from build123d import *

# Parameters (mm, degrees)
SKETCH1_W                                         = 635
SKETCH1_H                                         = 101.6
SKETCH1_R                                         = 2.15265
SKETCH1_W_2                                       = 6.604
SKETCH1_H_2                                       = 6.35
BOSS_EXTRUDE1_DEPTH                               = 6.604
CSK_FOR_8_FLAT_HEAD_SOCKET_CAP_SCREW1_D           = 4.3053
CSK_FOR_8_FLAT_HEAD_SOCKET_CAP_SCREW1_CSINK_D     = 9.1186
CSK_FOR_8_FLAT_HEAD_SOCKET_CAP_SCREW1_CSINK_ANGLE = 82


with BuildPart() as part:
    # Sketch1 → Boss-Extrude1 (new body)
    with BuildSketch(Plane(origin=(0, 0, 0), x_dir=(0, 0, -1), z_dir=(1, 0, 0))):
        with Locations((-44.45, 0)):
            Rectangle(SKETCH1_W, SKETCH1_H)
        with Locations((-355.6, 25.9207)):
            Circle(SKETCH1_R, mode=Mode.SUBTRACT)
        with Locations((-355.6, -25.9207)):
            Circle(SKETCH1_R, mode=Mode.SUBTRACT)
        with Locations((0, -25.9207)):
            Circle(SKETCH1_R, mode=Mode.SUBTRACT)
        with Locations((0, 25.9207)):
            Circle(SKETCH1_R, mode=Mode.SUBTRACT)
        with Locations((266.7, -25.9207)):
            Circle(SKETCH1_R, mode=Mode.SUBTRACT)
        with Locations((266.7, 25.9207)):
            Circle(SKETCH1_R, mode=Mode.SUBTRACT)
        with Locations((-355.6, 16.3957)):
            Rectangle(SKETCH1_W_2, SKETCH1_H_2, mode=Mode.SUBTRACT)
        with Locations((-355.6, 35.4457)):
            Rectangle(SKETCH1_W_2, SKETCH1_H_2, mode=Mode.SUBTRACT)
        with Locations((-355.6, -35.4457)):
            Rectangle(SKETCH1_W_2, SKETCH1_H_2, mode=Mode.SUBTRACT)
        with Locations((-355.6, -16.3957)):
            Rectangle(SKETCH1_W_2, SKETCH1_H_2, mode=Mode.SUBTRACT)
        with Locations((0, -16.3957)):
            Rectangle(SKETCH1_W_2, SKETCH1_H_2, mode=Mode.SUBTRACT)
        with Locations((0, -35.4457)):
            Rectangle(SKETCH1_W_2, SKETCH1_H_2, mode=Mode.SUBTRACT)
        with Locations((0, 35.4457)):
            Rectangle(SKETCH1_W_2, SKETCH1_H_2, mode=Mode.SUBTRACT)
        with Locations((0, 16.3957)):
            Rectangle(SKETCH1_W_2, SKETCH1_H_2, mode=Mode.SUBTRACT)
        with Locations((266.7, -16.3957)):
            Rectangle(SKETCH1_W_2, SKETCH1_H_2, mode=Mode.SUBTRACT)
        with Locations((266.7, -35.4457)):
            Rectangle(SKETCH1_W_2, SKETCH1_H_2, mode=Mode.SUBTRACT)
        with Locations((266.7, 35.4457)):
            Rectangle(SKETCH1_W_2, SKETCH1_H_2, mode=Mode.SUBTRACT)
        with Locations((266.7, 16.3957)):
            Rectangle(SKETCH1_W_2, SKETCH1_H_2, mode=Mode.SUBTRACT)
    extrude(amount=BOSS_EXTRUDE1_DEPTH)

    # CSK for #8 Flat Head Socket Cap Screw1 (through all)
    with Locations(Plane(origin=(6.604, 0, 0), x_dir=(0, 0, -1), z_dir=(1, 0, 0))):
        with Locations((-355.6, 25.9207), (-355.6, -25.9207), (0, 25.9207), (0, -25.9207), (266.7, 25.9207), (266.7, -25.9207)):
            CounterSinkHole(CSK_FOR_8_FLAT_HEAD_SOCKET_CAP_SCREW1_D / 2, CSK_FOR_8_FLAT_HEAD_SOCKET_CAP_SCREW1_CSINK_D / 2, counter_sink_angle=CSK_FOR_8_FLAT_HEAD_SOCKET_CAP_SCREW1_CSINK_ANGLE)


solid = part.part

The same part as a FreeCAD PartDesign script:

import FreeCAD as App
import Part
import Sketcher
from FreeCAD import Vector
Q = App.Units.Quantity

doc = App.newDocument("Part")
body = doc.addObject("PartDesign::Body", "Body")

sketch1 = body.newObject("Sketcher::SketchObject", "Sketch")
sketch1.AttachmentSupport = (doc.getObject("YZ_Plane"), [""])
sketch1.MapMode = "FlatFace"
sketch1.addGeometry([
    Part.LineSegment(Vector(50.8, 361.9, 0), Vector(-50.8, 361.9, 0)),
    Part.LineSegment(Vector(-50.8, 361.9, 0), Vector(-50.8, -273.1, 0)),
    Part.LineSegment(Vector(-50.8, -273.1, 0), Vector(50.8, -273.1, 0)),
    Part.LineSegment(Vector(50.8, -273.1, 0), Vector(50.8, 361.9, 0)),
    Part.LineSegment(Vector(-38.6, 352.3, 0), Vector(-38.6, 358.9, 0)),
    Part.LineSegment(Vector(-38.6, 358.9, 0), Vector(-32.3, 358.9, 0)),
    Part.LineSegment(Vector(-32.3, 358.9, 0), Vector(-32.3, 352.3, 0)),
    Part.LineSegment(Vector(-32.3, 352.3, 0), Vector(-38.6, 352.3, 0)),
    Part.Circle(Vector(-25.9, 355.6, 0), Vector(0, 0, 1), 2.2),
    Part.LineSegment(Vector(-19.6, 352.3, 0), Vector(-19.6, 358.9, 0)),
    Part.LineSegment(Vector(-19.6, 358.9, 0), Vector(-13.2, 358.9, 0)),
    Part.LineSegment(Vector(-13.2, 358.9, 0), Vector(-13.2, 352.3, 0)),
    Part.LineSegment(Vector(-13.2, 352.3, 0), Vector(-19.6, 352.3, 0)),
    Part.LineSegment(Vector(-38.6, -3.3, 0), Vector(-38.6, 3.3, 0)),
    Part.LineSegment(Vector(-38.6, 3.3, 0), Vector(-32.3, 3.3, 0)),
    Part.LineSegment(Vector(-32.3, 3.3, 0), Vector(-32.3, -3.3, 0)),
    Part.LineSegment(Vector(-32.3, -3.3, 0), Vector(-38.6, -3.3, 0)),
    Part.Circle(Vector(-25.9, 0, 0), Vector(0, 0, 1), 2.2),
    Part.LineSegment(Vector(-38.6, -270, 0), Vector(-38.6, -263.4, 0)),
    Part.LineSegment(Vector(-38.6, -263.4, 0), Vector(-32.3, -263.4, 0)),
    Part.LineSegment(Vector(-32.3, -263.4, 0), Vector(-32.3, -270, 0)),
    Part.LineSegment(Vector(-32.3, -270, 0), Vector(-38.6, -270, 0)),
    Part.Circle(Vector(-25.9, -266.7, 0), Vector(0, 0, 1), 2.2),
    Part.LineSegment(Vector(-19.6, -3.3, 0), Vector(-19.6, 3.3, 0)),
    Part.LineSegment(Vector(-19.6, 3.3, 0), Vector(-13.2, 3.3, 0)),
    Part.LineSegment(Vector(-13.2, 3.3, 0), Vector(-13.2, -3.3, 0)),
    Part.LineSegment(Vector(-13.2, -3.3, 0), Vector(-19.6, -3.3, 0)),
    Part.LineSegment(Vector(-19.6, -270, 0), Vector(-19.6, -263.4, 0)),
    Part.LineSegment(Vector(-19.6, -263.4, 0), Vector(-13.2, -263.4, 0)),
    Part.LineSegment(Vector(-13.2, -263.4, 0), Vector(-13.2, -270, 0)),
    Part.LineSegment(Vector(-13.2, -270, 0), Vector(-19.6, -270, 0)),
    Part.LineSegment(Vector(13.2, 352.3, 0), Vector(13.2, 358.9, 0)),
    Part.LineSegment(Vector(13.2, 358.9, 0), Vector(19.6, 358.9, 0)),
    Part.LineSegment(Vector(19.6, 358.9, 0), Vector(19.6, 352.3, 0)),
    Part.LineSegment(Vector(19.6, 352.3, 0), Vector(13.2, 352.3, 0)),
    Part.Circle(Vector(25.9, 355.6, 0), Vector(0, 0, 1), 2.2),
    Part.LineSegment(Vector(32.3, 352.3, 0), Vector(32.3, 358.9, 0)),
    Part.LineSegment(Vector(32.3, 358.9, 0), Vector(38.6, 358.9, 0)),
    Part.LineSegment(Vector(38.6, 358.9, 0), Vector(38.6, 352.3, 0)),
    Part.LineSegment(Vector(38.6, 352.3, 0), Vector(32.3, 352.3, 0)),
    Part.LineSegment(Vector(13.2, -3.3, 0), Vector(13.2, 3.3, 0)),
    Part.LineSegment(Vector(13.2, 3.3, 0), Vector(19.6, 3.3, 0)),
    Part.LineSegment(Vector(19.6, 3.3, 0), Vector(19.6, -3.3, 0)),
    Part.LineSegment(Vector(19.6, -3.3, 0), Vector(13.2, -3.3, 0)),
    Part.LineSegment(Vector(13.2, -270, 0), Vector(13.2, -263.4, 0)),
    Part.LineSegment(Vector(13.2, -263.4, 0), Vector(19.6, -263.4, 0)),
    Part.LineSegment(Vector(19.6, -263.4, 0), Vector(19.6, -270, 0)),
    Part.LineSegment(Vector(19.6, -270, 0), Vector(13.2, -270, 0)),
    Part.Circle(Vector(25.9, 0, 0), Vector(0, 0, 1), 2.2),
    Part.LineSegment(Vector(32.3, -3.3, 0), Vector(32.3, 3.3, 0)),
    Part.LineSegment(Vector(32.3, 3.3, 0), Vector(38.6, 3.3, 0)),
    Part.LineSegment(Vector(38.6, 3.3, 0), Vector(38.6, -3.3, 0)),
    Part.LineSegment(Vector(38.6, -3.3, 0), Vector(32.3, -3.3, 0)),
    Part.Circle(Vector(25.9, -266.7, 0), Vector(0, 0, 1), 2.2),
    Part.LineSegment(Vector(32.3, -270, 0), Vector(32.3, -263.4, 0)),
    Part.LineSegment(Vector(32.3, -263.4, 0), Vector(38.6, -263.4, 0)),
    Part.LineSegment(Vector(38.6, -263.4, 0), Vector(38.6, -270, 0)),
    Part.LineSegment(Vector(38.6, -270, 0), Vector(32.3, -270, 0)),
], False)
sketch1.addConstraint([
    Sketcher.Constraint("Coincident", 0, 2, 1, 1),
    Sketcher.Constraint("Coincident", 1, 2, 2, 1),
    Sketcher.Constraint("Coincident", 2, 2, 3, 1),
    Sketcher.Constraint("Coincident", 3, 2, 0, 1),
    Sketcher.Constraint("Coincident", 4, 2, 5, 1),
    Sketcher.Constraint("Coincident", 5, 2, 6, 1),
    Sketcher.Constraint("Coincident", 6, 2, 7, 1),
    Sketcher.Constraint("Coincident", 7, 2, 4, 1),
    Sketcher.Constraint("Coincident", 9, 2, 10, 1),
    Sketcher.Constraint("Coincident", 10, 2, 11, 1),
    Sketcher.Constraint("Coincident", 11, 2, 12, 1),
    Sketcher.Constraint("Coincident", 12, 2, 9, 1),
    Sketcher.Constraint("Coincident", 13, 2, 14, 1),
    Sketcher.Constraint("Coincident", 14, 2, 15, 1),
    Sketcher.Constraint("Coincident", 15, 2, 16, 1),
    Sketcher.Constraint("Coincident", 16, 2, 13, 1),
    Sketcher.Constraint("Coincident", 18, 2, 19, 1),
    Sketcher.Constraint("Coincident", 19, 2, 20, 1),
    Sketcher.Constraint("Coincident", 20, 2, 21, 1),
    Sketcher.Constraint("Coincident", 21, 2, 18, 1),
    Sketcher.Constraint("Coincident", 23, 2, 24, 1),
    Sketcher.Constraint("Coincident", 24, 2, 25, 1),
    Sketcher.Constraint("Coincident", 25, 2, 26, 1),
    Sketcher.Constraint("Coincident", 26, 2, 23, 1),
    Sketcher.Constraint("Coincident", 27, 2, 28, 1),
    Sketcher.Constraint("Coincident", 28, 2, 29, 1),
    Sketcher.Constraint("Coincident", 29, 2, 30, 1),
    Sketcher.Constraint("Coincident", 30, 2, 27, 1),
    Sketcher.Constraint("Coincident", 31, 2, 32, 1),
    Sketcher.Constraint("Coincident", 32, 2, 33, 1),
    Sketcher.Constraint("Coincident", 33, 2, 34, 1),
    Sketcher.Constraint("Coincident", 34, 2, 31, 1),
    Sketcher.Constraint("Coincident", 36, 2, 37, 1),
    Sketcher.Constraint("Coincident", 37, 2, 38, 1),
    Sketcher.Constraint("Coincident", 38, 2, 39, 1),
    Sketcher.Constraint("Coincident", 39, 2, 36, 1),
    Sketcher.Constraint("Coincident", 40, 2, 41, 1),
    Sketcher.Constraint("Coincident", 41, 2, 42, 1),
    Sketcher.Constraint("Coincident", 42, 2, 43, 1),
    Sketcher.Constraint("Coincident", 43, 2, 40, 1),
    Sketcher.Constraint("Coincident", 44, 2, 45, 1),
    Sketcher.Constraint("Coincident", 45, 2, 46, 1),
    Sketcher.Constraint("Coincident", 46, 2, 47, 1),
    Sketcher.Constraint("Coincident", 47, 2, 44, 1),
    Sketcher.Constraint("Coincident", 49, 2, 50, 1),
    Sketcher.Constraint("Coincident", 50, 2, 51, 1),
    Sketcher.Constraint("Coincident", 51, 2, 52, 1),
    Sketcher.Constraint("Coincident", 52, 2, 49, 1),
    Sketcher.Constraint("Coincident", 54, 2, 55, 1),
    Sketcher.Constraint("Coincident", 55, 2, 56, 1),
    Sketcher.Constraint("Coincident", 56, 2, 57, 1),
    Sketcher.Constraint("Coincident", 57, 2, 54, 1),
    Sketcher.Constraint("Horizontal", 0),
    Sketcher.Constraint("Vertical", 1),
    Sketcher.Constraint("Horizontal", 2),
    Sketcher.Constraint("Vertical", 3),
    Sketcher.Constraint("Vertical", 4),
    Sketcher.Constraint("Horizontal", 5),
    Sketcher.Constraint("Vertical", 6),
    Sketcher.Constraint("Horizontal", 7),
    Sketcher.Constraint("Vertical", 9),
    Sketcher.Constraint("Horizontal", 10),
    Sketcher.Constraint("Vertical", 11),
    Sketcher.Constraint("Horizontal", 12),
    Sketcher.Constraint("Vertical", 13),
    Sketcher.Constraint("Horizontal", 14),
    Sketcher.Constraint("Vertical", 15),
    Sketcher.Constraint("Horizontal", 16),
    Sketcher.Constraint("Vertical", 18),
    Sketcher.Constraint("Horizontal", 19),
    Sketcher.Constraint("Vertical", 20),
    Sketcher.Constraint("Horizontal", 21),
    Sketcher.Constraint("Vertical", 23),
    Sketcher.Constraint("Horizontal", 24),
    Sketcher.Constraint("Vertical", 25),
    Sketcher.Constraint("Horizontal", 26),
    Sketcher.Constraint("Vertical", 27),
    Sketcher.Constraint("Horizontal", 28),
    Sketcher.Constraint("Vertical", 29),
    Sketcher.Constraint("Horizontal", 30),
    Sketcher.Constraint("Vertical", 31),
    Sketcher.Constraint("Horizontal", 32),
    Sketcher.Constraint("Vertical", 33),
    Sketcher.Constraint("Horizontal", 34),
    Sketcher.Constraint("Vertical", 36),
    Sketcher.Constraint("Horizontal", 37),
    Sketcher.Constraint("Vertical", 38),
    Sketcher.Constraint("Horizontal", 39),
    Sketcher.Constraint("Vertical", 40),
    Sketcher.Constraint("Horizontal", 41),
    Sketcher.Constraint("Vertical", 42),
    Sketcher.Constraint("Horizontal", 43),
    Sketcher.Constraint("Vertical", 44),
    Sketcher.Constraint("Horizontal", 45),
    Sketcher.Constraint("Vertical", 46),
    Sketcher.Constraint("Horizontal", 47),
    Sketcher.Constraint("Vertical", 49),
    Sketcher.Constraint("Horizontal", 50),
    Sketcher.Constraint("Vertical", 51),
    Sketcher.Constraint("Horizontal", 52),
    Sketcher.Constraint("Vertical", 54),
    Sketcher.Constraint("Horizontal", 55),
    Sketcher.Constraint("Vertical", 56),
    Sketcher.Constraint("Horizontal", 57),
    Sketcher.Constraint("Equal", 8, 17),
    Sketcher.Constraint("Equal", 17, 22),
    Sketcher.Constraint("Equal", 22, 35),
    Sketcher.Constraint("Equal", 35, 48),
    Sketcher.Constraint("Equal", 48, 53),
    Sketcher.Constraint("Symmetric", 17, 3, 48, 3, -1, 1),
    Sketcher.Constraint("Symmetric", 25, 2, 40, 2, -1, 1),
    Sketcher.Constraint("Symmetric", 23, 2, 42, 2, -1, 1),
    Sketcher.Constraint("Symmetric", 15, 2, 49, 2, -1, 1),
    Sketcher.Constraint("Symmetric", 13, 2, 51, 2, -1, 1),
    Sketcher.Constraint("Symmetric", 8, 3, 35, 3, -2),
    Sketcher.Constraint("Symmetric", 22, 3, 53, 3, -2),
    Sketcher.Constraint("Symmetric", 10, 2, 31, 2, -2),
    Sketcher.Constraint("Symmetric", 12, 2, 33, 2, -2),
    Sketcher.Constraint("Symmetric", 5, 2, 36, 2, -2),
    Sketcher.Constraint("Symmetric", 7, 2, 38, 2, -2),
    Sketcher.Constraint("Symmetric", 28, 2, 44, 2, -2),
    Sketcher.Constraint("Symmetric", 30, 2, 46, 2, -2),
    Sketcher.Constraint("Symmetric", 19, 2, 54, 2, -2),
    Sketcher.Constraint("Symmetric", 21, 2, 56, 2, -2),
    Sketcher.Constraint("PointOnObject", 17, 3, -1),
    Sketcher.Constraint("Horizontal", 5, 2, 9, 2),
    Sketcher.Constraint("Horizontal", 7, 2, 11, 2),
    Sketcher.Constraint("Horizontal", 14, 2, 23, 2),
    Sketcher.Constraint("Horizontal", 16, 2, 25, 2),
    Sketcher.Constraint("Horizontal", 19, 2, 27, 2),
    Sketcher.Constraint("Horizontal", 21, 2, 29, 2),
    Sketcher.Constraint("Horizontal", 24, 2, 40, 2),
    Sketcher.Constraint("Vertical", 8, 3, 17, 3),
    Sketcher.Constraint("Vertical", 17, 3, 22, 3),
    Sketcher.Constraint("Vertical", 7, 2, 13, 2),
    Sketcher.Constraint("Vertical", 6, 2, 14, 2),
    Sketcher.Constraint("Vertical", 16, 2, 18, 2),
    Sketcher.Constraint("Vertical", 15, 2, 19, 2),
    Sketcher.Constraint("Vertical", 12, 2, 23, 2),
    Sketcher.Constraint("Vertical", 11, 2, 24, 2),
    Sketcher.Constraint("Vertical", 26, 2, 27, 2),
    Sketcher.Constraint("Vertical", 25, 2, 28, 2),
    Sketcher.Constraint("Equal", 7, 10),
    Sketcher.Constraint("Equal", 11, 13),
    Sketcher.Constraint("Equal", 15, 18),
    Sketcher.Constraint("DistanceX", 0, 2, 0, 1, Q("4 in")),
    Sketcher.Constraint("DistanceY", 1, 2, 1, 1, Q("25 in")),
    Sketcher.Constraint("DistanceY", -1, 1, 8, 3, Q("14 in")),
    Sketcher.Constraint("DistanceX", 0, 2, -1, 1, Q("2 in")),
    Sketcher.Constraint("DistanceX", 4, 2, 10, 2, Q("1 in")),
    Sketcher.Constraint("Diameter", 8, Q("0.1695 in")),
    Sketcher.Constraint("DistanceX", 5, 1, 5, 2, Q("0.25 in")),
    Sketcher.Constraint("DistanceY", 4, 1, 4, 2, Q("0.26 in")),
    Sketcher.Constraint("DistanceY", 22, 3, -1, 1, Q("10.5 in")),
    Sketcher.Constraint("DistanceX", 4, 2, 8, 3, Q("0.5 in")),
    Sketcher.Constraint("DistanceY", -1, 1, 0, 2, Q("14.25 in")),
    Sketcher.Constraint("DistanceY", -1, 1, 4, 2, Q("14.13 in")),
    Sketcher.Constraint("DistanceY", 18, 2, -1, 1, Q("10.37 in")),
    Sketcher.Constraint("DistanceX", 8, 3, 35, 3, Q("2.041 in")),
])
pad1 = body.newObject("PartDesign::Pad", "Pad")
pad1.Profile = sketch1
pad1.Length = Q("0.26 in")

sketch2 = body.newObject("Sketcher::SketchObject", "Sketch001")
sketch2.AttachmentSupport = (doc.getObject("YZ_Plane"), [""])
sketch2.MapMode = "FlatFace"
sketch2.AttachmentOffset = App.Placement(Vector(0, 0, 0.26 * 25.4), App.Rotation())
sketch2.addGeometry([
    Part.Circle(Vector(25.9, 355.6, 0), Vector(0, 0, 1), 2.2),
    Part.Circle(Vector(-25.9, 355.6, 0), Vector(0, 0, 1), 2.2),
    Part.Circle(Vector(25.9, 0, 0), Vector(0, 0, 1), 2.2),
    Part.Circle(Vector(-25.9, 0, 0), Vector(0, 0, 1), 2.2),
    Part.Circle(Vector(25.9, -266.7, 0), Vector(0, 0, 1), 2.2),
    Part.Circle(Vector(-25.9, -266.7, 0), Vector(0, 0, 1), 2.2),
], False)
sketch2.addConstraint([
    Sketcher.Constraint("Equal", 0, 1),
    Sketcher.Constraint("Equal", 1, 2),
    Sketcher.Constraint("Equal", 2, 3),
    Sketcher.Constraint("Equal", 3, 4),
    Sketcher.Constraint("Equal", 4, 5),
    Sketcher.Constraint("Symmetric", 2, 3, 3, 3, -1, 1),
    Sketcher.Constraint("Symmetric", 0, 3, 1, 3, -2),
    Sketcher.Constraint("Symmetric", 4, 3, 5, 3, -2),
    Sketcher.Constraint("PointOnObject", 2, 3, -1),
    Sketcher.Constraint("Vertical", 0, 3, 2, 3),
    Sketcher.Constraint("Vertical", 2, 3, 4, 3),
    Sketcher.Constraint("DistanceY", -1, 1, 0, 3, Q("14 in")),
    Sketcher.Constraint("Diameter", 0, Q("0.1695 in")),
    Sketcher.Constraint("DistanceY", 4, 3, -1, 1, Q("10.5 in")),
    Sketcher.Constraint("DistanceX", 1, 3, 0, 3, Q("2.041 in")),
])
doc.recompute()
hole = body.newObject("PartDesign::Hole", "Hole")
hole.Profile = sketch2
hole.ThreadType = "None"
hole.Diameter = Q("0.1695 in")
hole.DepthType = "ThroughAll"
hole.HoleCutType = "Countersink"
hole.HoleCutDiameter = Q("0.359 in")
hole.HoleCutCountersinkAngle = 82

doc.recompute()
